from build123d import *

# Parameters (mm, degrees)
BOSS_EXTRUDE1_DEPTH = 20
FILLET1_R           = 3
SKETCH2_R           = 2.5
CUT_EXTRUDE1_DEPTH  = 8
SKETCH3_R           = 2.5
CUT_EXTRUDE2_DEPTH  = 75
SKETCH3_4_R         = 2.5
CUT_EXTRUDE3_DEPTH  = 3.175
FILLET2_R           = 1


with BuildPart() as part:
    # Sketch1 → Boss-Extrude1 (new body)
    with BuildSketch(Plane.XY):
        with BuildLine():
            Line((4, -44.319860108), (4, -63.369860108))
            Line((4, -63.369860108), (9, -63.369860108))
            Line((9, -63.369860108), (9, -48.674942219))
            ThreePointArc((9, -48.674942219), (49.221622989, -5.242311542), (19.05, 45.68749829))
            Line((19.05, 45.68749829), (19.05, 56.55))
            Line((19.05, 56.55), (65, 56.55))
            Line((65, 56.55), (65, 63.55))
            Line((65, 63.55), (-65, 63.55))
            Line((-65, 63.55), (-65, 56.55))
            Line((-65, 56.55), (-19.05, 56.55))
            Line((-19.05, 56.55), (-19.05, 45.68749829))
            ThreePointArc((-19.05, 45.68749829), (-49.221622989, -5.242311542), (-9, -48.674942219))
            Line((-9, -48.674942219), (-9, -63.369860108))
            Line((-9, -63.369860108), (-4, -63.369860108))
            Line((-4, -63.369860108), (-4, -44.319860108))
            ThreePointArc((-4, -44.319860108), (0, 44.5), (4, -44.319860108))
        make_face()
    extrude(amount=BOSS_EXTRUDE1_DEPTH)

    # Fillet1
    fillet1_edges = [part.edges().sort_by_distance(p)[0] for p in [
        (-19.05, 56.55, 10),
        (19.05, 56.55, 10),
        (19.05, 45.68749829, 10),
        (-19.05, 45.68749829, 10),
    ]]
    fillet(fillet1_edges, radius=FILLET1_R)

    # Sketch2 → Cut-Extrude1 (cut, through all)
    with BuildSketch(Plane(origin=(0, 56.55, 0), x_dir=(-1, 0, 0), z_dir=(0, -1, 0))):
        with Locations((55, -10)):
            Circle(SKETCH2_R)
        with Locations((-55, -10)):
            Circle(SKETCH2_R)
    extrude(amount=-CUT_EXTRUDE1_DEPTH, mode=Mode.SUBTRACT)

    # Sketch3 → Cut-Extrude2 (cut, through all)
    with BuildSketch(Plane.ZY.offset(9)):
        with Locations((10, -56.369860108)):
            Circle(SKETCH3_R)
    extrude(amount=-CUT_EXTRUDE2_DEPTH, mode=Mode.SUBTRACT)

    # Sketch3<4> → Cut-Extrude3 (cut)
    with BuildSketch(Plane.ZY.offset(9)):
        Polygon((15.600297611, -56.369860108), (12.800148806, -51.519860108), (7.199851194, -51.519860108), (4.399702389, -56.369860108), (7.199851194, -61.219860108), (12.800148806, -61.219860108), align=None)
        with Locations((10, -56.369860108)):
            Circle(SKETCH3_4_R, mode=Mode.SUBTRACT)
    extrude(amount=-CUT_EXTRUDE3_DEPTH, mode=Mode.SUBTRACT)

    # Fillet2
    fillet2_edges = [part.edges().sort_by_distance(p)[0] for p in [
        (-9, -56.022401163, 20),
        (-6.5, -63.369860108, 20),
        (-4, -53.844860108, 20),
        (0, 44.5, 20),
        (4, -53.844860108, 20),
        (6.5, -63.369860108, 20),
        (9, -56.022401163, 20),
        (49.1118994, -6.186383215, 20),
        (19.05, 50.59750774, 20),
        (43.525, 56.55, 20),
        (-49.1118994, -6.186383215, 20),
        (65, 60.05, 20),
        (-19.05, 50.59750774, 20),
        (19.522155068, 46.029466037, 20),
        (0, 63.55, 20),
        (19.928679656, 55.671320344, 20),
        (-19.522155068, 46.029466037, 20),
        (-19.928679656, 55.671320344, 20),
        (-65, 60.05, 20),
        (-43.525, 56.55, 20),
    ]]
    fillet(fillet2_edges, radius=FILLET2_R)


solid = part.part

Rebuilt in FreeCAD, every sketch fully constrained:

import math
import FreeCAD as App
import Part
import Sketcher
from FreeCAD import Vector
Q = App.Units.Quantity


def edges_at(feature, points):
    """Names of the edges that pass closest to the given points."""
    edges = feature.Shape.Edges
    near = lambda p: min(range(len(edges)), key=lambda i: edges[i].distToShape(Part.Vertex(*p))[0])
    return sorted({f"Edge{near(p) + 1}" for p in points})

doc = App.newDocument("Part")
body = doc.addObject("PartDesign::Body", "Body")

# Sketch on XY plane
sketch1 = doc.addObject("Sketcher::SketchObject", "Sketch")
body.addObject(sketch1)
sketch1.AttachmentSupport = (doc.XY_Plane, [""])
sketch1.MapMode = "FlatFace"
sketch1.addGeometry([
    Part.LineSegment(Vector(4, -44, 0), Vector(4, -63, 0)),  # 0
    Part.LineSegment(Vector(4, -63, 0), Vector(9, -63, 0)),  # 1
    Part.LineSegment(Vector(9, -63, 0), Vector(9, -49, 0)),  # 2
    Part.ArcOfCircle(Part.Circle(Vector(0, 0, 0), Vector(0, 0, 1), 50), math.radians(-80), math.radians(67)),  # 3
    Part.LineSegment(Vector(19, 46, 0), Vector(19, 57, 0)),  # 4
    Part.LineSegment(Vector(19, 57, 0), Vector(65, 57, 0)),  # 5
    Part.LineSegment(Vector(65, 57, 0), Vector(65, 64, 0)),  # 6
    Part.LineSegment(Vector(65, 64, 0), Vector(-65, 64, 0)),  # 7
    Part.LineSegment(Vector(-65, 64, 0), Vector(-65, 57, 0)),  # 8
    Part.LineSegment(Vector(-65, 57, 0), Vector(-19, 57, 0)),  # 9
    Part.LineSegment(Vector(-19, 57, 0), Vector(-19, 46, 0)),  # 10
    Part.ArcOfCircle(Part.Circle(Vector(0, 0, 0), Vector(0, 0, 1), 50), math.radians(113), math.radians(260)),  # 11
    Part.LineSegment(Vector(-9, -49, 0), Vector(-9, -63, 0)),  # 12
    Part.LineSegment(Vector(-9, -63, 0), Vector(-4, -63, 0)),  # 13
    Part.LineSegment(Vector(-4, -63, 0), Vector(-4, -44, 0)),  # 14
    Part.ArcOfCircle(Part.Circle(Vector(0, 0, 0), Vector(0, 0, 1), 44), math.radians(-85), math.radians(265)),  # 15
], False)
sketch1.addConstraint([
    Sketcher.Constraint("Coincident", 0, 2, 1, 1),
    Sketcher.Constraint("Coincident", 1, 2, 2, 1),
    Sketcher.Constraint("Coincident", 2, 2, 3, 1),
    Sketcher.Constraint("Coincident", 3, 2, 4, 1),
    Sketcher.Constraint("Coincident", 4, 2, 5, 1),
    Sketcher.Constraint("Coincident", 5, 2, 6, 1),
    Sketcher.Constraint("Coincident", 6, 2, 7, 1),
    Sketcher.Constraint("Coincident", 7, 2, 8, 1),
    Sketcher.Constraint("Coincident", 8, 2, 9, 1),
    Sketcher.Constraint("Coincident", 9, 2, 10, 1),
    Sketcher.Constraint("Coincident", 10, 2, 11, 1),
    Sketcher.Constraint("Coincident", 11, 2, 12, 1),
    Sketcher.Constraint("Coincident", 12, 2, 13, 1),
    Sketcher.Constraint("Coincident", 13, 2, 14, 1),
    Sketcher.Constraint("Coincident", 14, 2, 15, 2),
    Sketcher.Constraint("Coincident", 15, 1, 0, 1),
    Sketcher.Constraint("Vertical", 0),
    Sketcher.Constraint("Horizontal", 1),
    Sketcher.Constraint("Vertical", 2),
    Sketcher.Constraint("Vertical", 4),
    Sketcher.Constraint("Horizontal", 5),
    Sketcher.Constraint("Vertical", 6),
    Sketcher.Constraint("Horizontal", 7),
    Sketcher.Constraint("Vertical", 8),
    Sketcher.Constraint("Horizontal", 9),
    Sketcher.Constraint("Vertical", 10),
    Sketcher.Constraint("Vertical", 12),
    Sketcher.Constraint("Horizontal", 13),
    Sketcher.Constraint("Vertical", 14),
    Sketcher.Constraint("Coincident", 3, 3, -1, 1),
    Sketcher.Constraint("Coincident", 11, 3, -1, 1),
    Sketcher.Constraint("Coincident", 15, 3, -1, 1),
    Sketcher.Constraint("Equal", 3, 11),
    Sketcher.Constraint("Symmetric", 5, 2, 8, 2, -2),
    Sketcher.Constraint("Symmetric", 1, 2, 12, 2, -2),
    Sketcher.Constraint("Horizontal", 3, 2, 10, 2),
    Sketcher.Constraint("Horizontal", 14, 2, 15, 1),
    Sketcher.Constraint("Radius", 3, 49.5),
    Sketcher.Constraint("Radius", 15, 44.5),
    Sketcher.Constraint("DistanceX", 1, 1, 1, 2, 5.0),
    Sketcher.Constraint("DistanceX", 7, 2, 7, 1, 130.0),
    Sketcher.Constraint("DistanceY", 6, 1, 6, 2, 7.0),
    Sketcher.Constraint("DistanceX", -1, 1, 0, 2, 4.0),
    Sketcher.Constraint("DistanceX", 5, 1, 5, 2, 45.95),
    Sketcher.Constraint("DistanceY", 0, 2, 0, 1, 19.05),
    Sketcher.Constraint("DistanceY", -1, 1, 4, 2, 56.55),
])
pad1 = doc.addObject("PartDesign::Pad", "Pad")
body.addObject(pad1)
pad1.Profile = sketch1
pad1.Length = 20
doc.recompute()

fillet = doc.addObject("PartDesign::Fillet", "Fillet")
body.addObject(fillet)
fillet.Base = (pad1, edges_at(pad1, [
    (-19.05, 56.55, 10),
    (19.05, 56.55, 10),
    (19.05, 45.687, 10),
    (-19.05, 45.687, 10),
]))
fillet.Radius = 3

# Sketch on XZ plane
sketch2 = doc.addObject("Sketcher::SketchObject", "Sketch001")
body.addObject(sketch2)
sketch2.AttachmentSupport = (doc.XZ_Plane, [""])
sketch2.MapMode = "FlatFace"
sketch2.AttachmentOffset = App.Placement(Vector(0, 0, -56.55), App.Rotation())
sketch2.addGeometry([
    Part.Circle(Vector(-55, 10, 0), Vector(0, 0, 1), 2.5),
    Part.Circle(Vector(55, 10, 0), Vector(0, 0, 1), 2.5),
], False)
sketch2.addConstraint([
    Sketcher.Constraint("Equal", 0, 1),
    Sketcher.Constraint("Symmetric", 0, 3, 1, 3, -2),
    Sketcher.Constraint("Diameter", 0, 5.0),
    Sketcher.Constraint("DistanceX", 0, 3, -1, 1, 55.0),
    Sketcher.Constraint("DistanceY", -1, 1, 0, 3, 10.0),
])
pocket1 = doc.addObject("PartDesign::Pocket", "Pocket")
body.addObject(pocket1)
pocket1.Profile = sketch2
pocket1.Type = "ThroughAll"

# Sketch on YZ plane
sketch3 = doc.addObject("Sketcher::SketchObject", "Sketch002")
body.addObject(sketch3)
sketch3.AttachmentSupport = (doc.YZ_Plane, [""])
sketch3.MapMode = "FlatFace"
sketch3.AttachmentOffset = App.Placement(Vector(0, 0, -9), App.Rotation())
sketch3.addGeometry(Part.Circle(Vector(-56.4, 10, 0), Vector(0, 0, 1), 2.5), False)
sketch3.addConstraint([
    Sketcher.Constraint("Diameter", 0, 5.0),
    Sketcher.Constraint("DistanceY", -1, 1, 0, 3, 10.0),
    Sketcher.Constraint("DistanceX", 0, 3, -1, 1, 56.36986),
])
pocket2 = doc.addObject("PartDesign::Pocket", "Pocket001")
body.addObject(pocket2)
pocket2.Profile = sketch3
pocket2.Type = "ThroughAll"
pocket2.Reversed = True

# Sketch on YZ plane
sketch4 = doc.addObject("Sketcher::SketchObject", "Sketch003")
body.addObject(sketch4)
sketch4.AttachmentSupport = (doc.YZ_Plane, [""])
sketch4.MapMode = "FlatFace"
sketch4.AttachmentOffset = App.Placement(Vector(0, 0, -9), App.Rotation())
sketch4.addGeometry([
    Part.LineSegment(Vector(-56.4, 15.6, 0), Vector(-51.5, 12.8, 0)),  # 0
    Part.LineSegment(Vector(-51.5, 12.8, 0), Vector(-51.5, 7.2, 0)),  # 1
    Part.LineSegment(Vector(-51.5, 7.2, 0), Vector(-56.4, 4.4, 0)),  # 2
    Part.LineSegment(Vector(-56.4, 4.4, 0), Vector(-61.2, 7.2, 0)),  # 3
    Part.LineSegment(Vector(-61.2, 7.2, 0), Vector(-61.2, 12.8, 0)),  # 4
    Part.LineSegment(Vector(-61.2, 12.8, 0), Vector(-56.4, 15.6, 0)),  # 5
    Part.Circle(Vector(-56.4, 10, 0), Vector(0, 0, 1), 2.5),  # 6
], False)
sketch4.addConstraint([
    Sketcher.Constraint("Coincident", 0, 2, 1, 1),
    Sketcher.Constraint("Coincident", 1, 2, 2, 1),
    Sketcher.Constraint("Coincident", 2, 2, 3, 1),
    Sketcher.Constraint("Coincident", 3, 2, 4, 1),
    Sketcher.Constraint("Coincident", 4, 2, 5, 1),
    Sketcher.Constraint("Coincident", 5, 2, 0, 1),
    Sketcher.Constraint("Vertical", 1),
    Sketcher.Constraint("Vertical", 4),
    Sketcher.Constraint("Parallel", 0, 3),
    Sketcher.Constraint("Parallel", 2, 5),
    Sketcher.Constraint("Horizontal", 1, 2, 3, 2),
    Sketcher.Constraint("Horizontal", 0, 2, 4, 2),
    Sketcher.Constraint("Vertical", 6, 3, 2, 2),
    Sketcher.Constraint("Vertical", 2, 2, 5, 2),
    Sketcher.Constraint("Diameter", 6, 5.0),
    Sketcher.Constraint("Angle", 0, Q("-30 deg")),
    Sketcher.Constraint("DistanceY", -1, 1, 6, 3, 10.0),
    Sketcher.Constraint("DistanceX", 3, 2, 1, 2, 9.7),
    Sketcher.Constraint("DistanceY", 1, 2, 1, 1, 5.600298),
    Sketcher.Constraint("DistanceX", 6, 3, -1, 1, 56.36986),
    Sketcher.Constraint("DistanceY", -1, 1, 0, 2, 12.800149),
])
pocket3 = doc.addObject("PartDesign::Pocket", "Pocket002")
body.addObject(pocket3)
pocket3.Profile = sketch4
pocket3.Length = 3.175
pocket3.Reversed = True
doc.recompute()

fillet2 = doc.addObject("PartDesign::Fillet", "Fillet001")
body.addObject(fillet2)
fillet2.Base = (pocket3, edges_at(pocket3, [
    (-9, -56.022, 20),
    (-6.5, -63.37, 20),
    (-4, -53.845, 20),
    (0, 44.5, 20),
    (4, -53.845, 20),
    (6.5, -63.37, 20),
    (9, -56.022, 20),
    (49.112, -6.186, 20),
    (19.05, 50.598, 20),
    (43.525, 56.55, 20),
    (-49.112, -6.186, 20),
    (65, 60.05, 20),
    (-19.05, 50.598, 20),
    (19.522, 46.029, 20),
    (0, 63.55, 20),
    (19.929, 55.671, 20),
    (-19.522, 46.029, 20),
    (-19.929, 55.671, 20),
    (-65, 60.05, 20),
    (-43.525, 56.55, 20),
]))
fillet2.Radius = 1

doc.recompute()
